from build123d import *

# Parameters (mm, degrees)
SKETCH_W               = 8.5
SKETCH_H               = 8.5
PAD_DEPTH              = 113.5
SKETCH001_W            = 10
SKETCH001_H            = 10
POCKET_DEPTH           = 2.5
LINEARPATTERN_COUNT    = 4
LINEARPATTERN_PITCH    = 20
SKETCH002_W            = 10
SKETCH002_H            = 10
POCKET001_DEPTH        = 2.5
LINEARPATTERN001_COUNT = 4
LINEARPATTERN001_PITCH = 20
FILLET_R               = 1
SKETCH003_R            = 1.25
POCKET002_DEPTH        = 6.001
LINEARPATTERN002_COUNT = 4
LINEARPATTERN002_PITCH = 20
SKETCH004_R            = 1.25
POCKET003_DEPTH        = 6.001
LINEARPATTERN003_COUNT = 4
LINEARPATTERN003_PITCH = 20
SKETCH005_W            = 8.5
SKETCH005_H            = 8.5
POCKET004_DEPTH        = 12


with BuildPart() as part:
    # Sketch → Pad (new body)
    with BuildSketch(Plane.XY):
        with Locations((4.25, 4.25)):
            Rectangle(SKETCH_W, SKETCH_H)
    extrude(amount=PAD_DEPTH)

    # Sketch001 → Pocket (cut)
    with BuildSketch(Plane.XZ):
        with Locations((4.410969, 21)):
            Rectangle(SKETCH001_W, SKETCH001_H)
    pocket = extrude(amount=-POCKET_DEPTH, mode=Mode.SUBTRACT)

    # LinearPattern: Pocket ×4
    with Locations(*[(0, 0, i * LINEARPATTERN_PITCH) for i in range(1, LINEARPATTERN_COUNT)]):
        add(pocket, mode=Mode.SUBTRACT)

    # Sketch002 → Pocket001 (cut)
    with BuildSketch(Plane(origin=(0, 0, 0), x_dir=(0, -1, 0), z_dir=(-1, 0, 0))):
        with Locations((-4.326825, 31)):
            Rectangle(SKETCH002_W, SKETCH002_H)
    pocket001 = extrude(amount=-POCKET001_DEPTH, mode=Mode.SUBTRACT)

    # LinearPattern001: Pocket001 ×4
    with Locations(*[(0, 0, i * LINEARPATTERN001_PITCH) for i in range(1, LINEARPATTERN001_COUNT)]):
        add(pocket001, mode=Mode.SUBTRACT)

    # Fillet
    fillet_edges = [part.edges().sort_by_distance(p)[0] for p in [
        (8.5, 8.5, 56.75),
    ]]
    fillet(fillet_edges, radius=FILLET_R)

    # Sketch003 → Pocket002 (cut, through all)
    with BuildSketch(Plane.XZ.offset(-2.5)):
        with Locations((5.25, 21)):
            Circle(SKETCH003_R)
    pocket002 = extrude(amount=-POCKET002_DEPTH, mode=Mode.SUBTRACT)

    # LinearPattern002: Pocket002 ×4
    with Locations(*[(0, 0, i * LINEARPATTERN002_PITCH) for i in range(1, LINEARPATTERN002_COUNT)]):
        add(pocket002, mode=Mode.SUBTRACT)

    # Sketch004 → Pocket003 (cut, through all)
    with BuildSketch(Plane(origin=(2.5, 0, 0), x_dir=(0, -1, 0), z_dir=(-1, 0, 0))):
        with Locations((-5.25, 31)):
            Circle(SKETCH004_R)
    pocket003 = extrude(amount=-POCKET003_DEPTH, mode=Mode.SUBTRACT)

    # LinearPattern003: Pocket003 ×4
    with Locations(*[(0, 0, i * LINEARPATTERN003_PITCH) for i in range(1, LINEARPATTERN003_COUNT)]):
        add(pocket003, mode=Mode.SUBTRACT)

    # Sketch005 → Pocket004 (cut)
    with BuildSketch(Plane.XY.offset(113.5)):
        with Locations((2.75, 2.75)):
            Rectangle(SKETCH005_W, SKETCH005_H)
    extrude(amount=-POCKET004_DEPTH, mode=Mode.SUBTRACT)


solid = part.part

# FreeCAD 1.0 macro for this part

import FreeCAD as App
import Part
import Sketcher

V = App.Vector


def edges_at(feature, points):
    """Names of the edges that pass closest to the given points."""
    edges = feature.Shape.Edges
    near = lambda p: min(range(len(edges)), key=lambda i: edges[i].distToShape(Part.Vertex(*p))[0])
    return sorted({f"Edge{near(p) + 1}" for p in points})

doc = App.newDocument("Part")
body = doc.addObject("PartDesign::Body", "Body")

sketch1 = body.newObject("Sketcher::SketchObject", "Sketch")
sketch1.AttachmentSupport = (doc.getObject("XY_Plane"), [""])
sketch1.MapMode = "FlatFace"
sketch1.addGeometry([
    Part.LineSegment(V(0, 8.5, 0), V(0, 0, 0)),
    Part.LineSegment(V(0, 0, 0), V(8.5, 0, 0)),
    Part.LineSegment(V(8.5, 0, 0), V(8.5, 8.5, 0)),
    Part.LineSegment(V(8.5, 8.5, 0), V(0, 8.5, 0)),
], False)
sketch1.addConstraint([
    Sketcher.Constraint("Coincident", 0, 2, 1, 1),
    Sketcher.Constraint("Coincident", 1, 2, 2, 1),
    Sketcher.Constraint("Coincident", 2, 2, 3, 1),
    Sketcher.Constraint("Coincident", 3, 2, 0, 1),
    Sketcher.Constraint("Vertical", 0),
    Sketcher.Constraint("Horizontal", 1),
    Sketcher.Constraint("Vertical", 2),
    Sketcher.Constraint("Horizontal", 3),
    Sketcher.Constraint("Coincident", 0, 2, -1, 1),
    Sketcher.Constraint("Equal", 3, 0),
    Sketcher.Constraint("DistanceX", 1, 1, 1, 2, 8.5),
])
pad1 = body.newObject("PartDesign::Pad", "Pad")
pad1.Profile = sketch1
pad1.Length = 113.5

sketch2 = body.newObject("Sketcher::SketchObject", "Sketch001")
sketch2.AttachmentSupport = (doc.getObject("XZ_Plane"), [""])
sketch2.MapMode = "FlatFace"
sketch2.addGeometry([
    Part.LineSegment(V(-0.589031, 26, 0), V(-0.589031, 16, 0)),
    Part.LineSegment(V(-0.589031, 16, 0), V(9.410969, 16, 0)),
    Part.LineSegment(V(9.410969, 16, 0), V(9.410969, 26, 0)),
    Part.LineSegment(V(9.410969, 26, 0), V(-0.589031, 26, 0)),
], False)
sketch2.addConstraint([
    Sketcher.Constraint("Coincident", 0, 2, 1, 1),
    Sketcher.Constraint("Coincident", 1, 2, 2, 1),
    Sketcher.Constraint("Coincident", 2, 2, 3, 1),
    Sketcher.Constraint("Coincident", 3, 2, 0, 1),
    Sketcher.Constraint("Vertical", 0),
    Sketcher.Constraint("Horizontal", 1),
    Sketcher.Constraint("Vertical", 2),
    Sketcher.Constraint("Horizontal", 3),
    Sketcher.Constraint("Equal", 3, 0),
    Sketcher.Constraint("DistanceX", 1, 1, 1, 2, 10.0),
    Sketcher.Constraint("DistanceY", -1, 1, 0, 2, 16.0),
    Sketcher.Constraint("DistanceX", 0, 2, -1, 1, 0.589031),
])
pocket1 = body.newObject("PartDesign::Pocket", "Pocket")
pocket1.Profile = sketch2
pocket1.Length = 2.5
doc.recompute()

linearpattern = body.newObject("PartDesign::LinearPattern", "LinearPattern")
linearpattern.Originals = [pocket1]
linearpattern.Direction = (doc.getObject("Z_Axis"), [""])
linearpattern.Mode = "offset"
linearpattern.Offset = 20
linearpattern.Occurrences = 4
body.Tip = linearpattern

sketch3 = body.newObject("Sketcher::SketchObject", "Sketch002")
sketch3.AttachmentSupport = (doc.getObject("YZ_Plane"), [""])
sketch3.MapMode = "FlatFace"
sketch3.addGeometry([
    Part.LineSegment(V(9.326825, 36, 0), V(9.326825, 26, 0)),
    Part.LineSegment(V(9.326825, 26, 0), V(-0.673175, 26, 0)),
    Part.LineSegment(V(-0.673175, 26, 0), V(-0.673175, 36, 0)),
    Part.LineSegment(V(-0.673175, 36, 0), V(9.326825, 36, 0)),
], False)
sketch3.addConstraint([
    Sketcher.Constraint("Coincident", 0, 2, 1, 1),
    Sketcher.Constraint("Coincident", 1, 2, 2, 1),
    Sketcher.Constraint("Coincident", 2, 2, 3, 1),
    Sketcher.Constraint("Coincident", 3, 2, 0, 1),
    Sketcher.Constraint("Vertical", 0),
    Sketcher.Constraint("Horizontal", 1),
    Sketcher.Constraint("Vertical", 2),
    Sketcher.Constraint("Horizontal", 3),
    Sketcher.Constraint("Equal", 3, 0),
    Sketcher.Constraint("DistanceX", 1, 2, 1, 1, 10.0),
    Sketcher.Constraint("DistanceY", -1, 1, 0, 2, 26.0),
    Sketcher.Constraint("DistanceX", -1, 1, 0, 2, 9.326825),
])
pocket2 = body.newObject("PartDesign::Pocket", "Pocket001")
pocket2.Profile = sketch3
pocket2.Length = 2.5
pocket2.Reversed = True
doc.recompute()

linearpattern2 = body.newObject("PartDesign::LinearPattern", "LinearPattern001")
linearpattern2.Originals = [pocket2]
linearpattern2.Direction = (doc.getObject("Z_Axis"), [""])
linearpattern2.Mode = "offset"
linearpattern2.Offset = 20
linearpattern2.Occurrences = 4
body.Tip = linearpattern2
doc.recompute()

fillet = body.newObject("PartDesign::Fillet", "Fillet")
fillet.Base = (linearpattern2, edges_at(linearpattern2, [(8.5, 8.5, 56.75)]))
fillet.Radius = 1

sketch4 = body.newObject("Sketcher::SketchObject", "Sketch003")
sketch4.AttachmentSupport = (doc.getObject("XZ_Plane"), [""])
sketch4.MapMode = "FlatFace"
sketch4.AttachmentOffset = App.Placement(V(0, 0, -2.5), App.Rotation())
sketch4.addGeometry(Part.Circle(V(5.25, 21, 0), V(0, 0, 1), 1.25), False)
sketch4.addConstraint([
    Sketcher.Constraint("Diameter", 0, 2.5),
    Sketcher.Constraint("DistanceY", -1, 1, 0, 3, 21.0),
    Sketcher.Constraint("DistanceX", -1, 1, 0, 3, 5.25),
])
pocket3 = body.newObject("PartDesign::Pocket", "Pocket002")
pocket3.Profile = sketch4
pocket3.Type = "ThroughAll"
doc.recompute()

linearpattern3 = body.newObject("PartDesign::LinearPattern", "LinearPattern002")
linearpattern3.Originals = [pocket3]
linearpattern3.Direction = (doc.getObject("Z_Axis"), [""])
linearpattern3.Mode = "offset"
linearpattern3.Offset = 20
linearpattern3.Occurrences = 4
body.Tip = linearpattern3

sketch5 = body.newObject("Sketcher::SketchObject", "Sketch004")
sketch5.AttachmentSupport = (doc.getObject("YZ_Plane"), [""])
sketch5.MapMode = "FlatFace"
sketch5.AttachmentOffset = App.Placement(V(0, 0, 2.5), App.Rotation())
sketch5.addGeometry(Part.Circle(V(5.25, 31, 0), V(0, 0, 1), 1.25), False)
sketch5.addConstraint([
    Sketcher.Constraint("Diameter", 0, 2.5),
    Sketcher.Constraint("DistanceY", -1, 1, 0, 3, 31.0),
    Sketcher.Constraint("DistanceX", -1, 1, 0, 3, 5.25),
])
pocket4 = body.newObject("PartDesign::Pocket", "Pocket003")
pocket4.Profile = sketch5
pocket4.Type = "ThroughAll"
pocket4.Reversed = True
doc.recompute()

linearpattern4 = body.newObject("PartDesign::LinearPattern", "LinearPattern003")
linearpattern4.Originals = [pocket4]
linearpattern4.Direction = (doc.getObject("Z_Axis"), [""])
linearpattern4.Mode = "offset"
linearpattern4.Offset = 20
linearpattern4.Occurrences = 4
body.Tip = linearpattern4

sketch6 = body.newObject("Sketcher::SketchObject", "Sketch005")
sketch6.AttachmentSupport = (doc.getObject("XY_Plane"), [""])
sketch6.MapMode = "FlatFace"
sketch6.AttachmentOffset = App.Placement(V(0, 0, 113.5), App.Rotation())
sketch6.addGeometry([
    Part.LineSegment(V(-1.5, 7, 0), V(-1.5, -1.5, 0)),
    Part.LineSegment(V(-1.5, -1.5, 0), V(7, -1.5, 0)),
    Part.LineSegment(V(7, -1.5, 0), V(7, 7, 0)),
    Part.LineSegment(V(7, 7, 0), V(-1.5, 7, 0)),
], False)
sketch6.addConstraint([
    Sketcher.Constraint("Coincident", 0, 2, 1, 1),
    Sketcher.Constraint("Coincident", 1, 2, 2, 1),
    Sketcher.Constraint("Coincident", 2, 2, 3, 1),
    Sketcher.Constraint("Coincident", 3, 2, 0, 1),
    Sketcher.Constraint("Vertical", 0),
    Sketcher.Constraint("Horizontal", 1),
    Sketcher.Constraint("Vertical", 2),
    Sketcher.Constraint("Horizontal", 3),
    Sketcher.Constraint("Equal", 3, 0),
    Sketcher.Constraint("DistanceX", 1, 1, 1, 2, 8.5),
    Sketcher.Constraint("DistanceX", -1, 1, 1, 2, 7.0),
    Sketcher.Constraint("DistanceY", -1, 1, 2, 2, 7.0),
])
pocket5 = body.newObject("PartDesign::Pocket", "Pocket004")
pocket5.Profile = sketch6
pocket5.Length = 12

doc.recompute()
